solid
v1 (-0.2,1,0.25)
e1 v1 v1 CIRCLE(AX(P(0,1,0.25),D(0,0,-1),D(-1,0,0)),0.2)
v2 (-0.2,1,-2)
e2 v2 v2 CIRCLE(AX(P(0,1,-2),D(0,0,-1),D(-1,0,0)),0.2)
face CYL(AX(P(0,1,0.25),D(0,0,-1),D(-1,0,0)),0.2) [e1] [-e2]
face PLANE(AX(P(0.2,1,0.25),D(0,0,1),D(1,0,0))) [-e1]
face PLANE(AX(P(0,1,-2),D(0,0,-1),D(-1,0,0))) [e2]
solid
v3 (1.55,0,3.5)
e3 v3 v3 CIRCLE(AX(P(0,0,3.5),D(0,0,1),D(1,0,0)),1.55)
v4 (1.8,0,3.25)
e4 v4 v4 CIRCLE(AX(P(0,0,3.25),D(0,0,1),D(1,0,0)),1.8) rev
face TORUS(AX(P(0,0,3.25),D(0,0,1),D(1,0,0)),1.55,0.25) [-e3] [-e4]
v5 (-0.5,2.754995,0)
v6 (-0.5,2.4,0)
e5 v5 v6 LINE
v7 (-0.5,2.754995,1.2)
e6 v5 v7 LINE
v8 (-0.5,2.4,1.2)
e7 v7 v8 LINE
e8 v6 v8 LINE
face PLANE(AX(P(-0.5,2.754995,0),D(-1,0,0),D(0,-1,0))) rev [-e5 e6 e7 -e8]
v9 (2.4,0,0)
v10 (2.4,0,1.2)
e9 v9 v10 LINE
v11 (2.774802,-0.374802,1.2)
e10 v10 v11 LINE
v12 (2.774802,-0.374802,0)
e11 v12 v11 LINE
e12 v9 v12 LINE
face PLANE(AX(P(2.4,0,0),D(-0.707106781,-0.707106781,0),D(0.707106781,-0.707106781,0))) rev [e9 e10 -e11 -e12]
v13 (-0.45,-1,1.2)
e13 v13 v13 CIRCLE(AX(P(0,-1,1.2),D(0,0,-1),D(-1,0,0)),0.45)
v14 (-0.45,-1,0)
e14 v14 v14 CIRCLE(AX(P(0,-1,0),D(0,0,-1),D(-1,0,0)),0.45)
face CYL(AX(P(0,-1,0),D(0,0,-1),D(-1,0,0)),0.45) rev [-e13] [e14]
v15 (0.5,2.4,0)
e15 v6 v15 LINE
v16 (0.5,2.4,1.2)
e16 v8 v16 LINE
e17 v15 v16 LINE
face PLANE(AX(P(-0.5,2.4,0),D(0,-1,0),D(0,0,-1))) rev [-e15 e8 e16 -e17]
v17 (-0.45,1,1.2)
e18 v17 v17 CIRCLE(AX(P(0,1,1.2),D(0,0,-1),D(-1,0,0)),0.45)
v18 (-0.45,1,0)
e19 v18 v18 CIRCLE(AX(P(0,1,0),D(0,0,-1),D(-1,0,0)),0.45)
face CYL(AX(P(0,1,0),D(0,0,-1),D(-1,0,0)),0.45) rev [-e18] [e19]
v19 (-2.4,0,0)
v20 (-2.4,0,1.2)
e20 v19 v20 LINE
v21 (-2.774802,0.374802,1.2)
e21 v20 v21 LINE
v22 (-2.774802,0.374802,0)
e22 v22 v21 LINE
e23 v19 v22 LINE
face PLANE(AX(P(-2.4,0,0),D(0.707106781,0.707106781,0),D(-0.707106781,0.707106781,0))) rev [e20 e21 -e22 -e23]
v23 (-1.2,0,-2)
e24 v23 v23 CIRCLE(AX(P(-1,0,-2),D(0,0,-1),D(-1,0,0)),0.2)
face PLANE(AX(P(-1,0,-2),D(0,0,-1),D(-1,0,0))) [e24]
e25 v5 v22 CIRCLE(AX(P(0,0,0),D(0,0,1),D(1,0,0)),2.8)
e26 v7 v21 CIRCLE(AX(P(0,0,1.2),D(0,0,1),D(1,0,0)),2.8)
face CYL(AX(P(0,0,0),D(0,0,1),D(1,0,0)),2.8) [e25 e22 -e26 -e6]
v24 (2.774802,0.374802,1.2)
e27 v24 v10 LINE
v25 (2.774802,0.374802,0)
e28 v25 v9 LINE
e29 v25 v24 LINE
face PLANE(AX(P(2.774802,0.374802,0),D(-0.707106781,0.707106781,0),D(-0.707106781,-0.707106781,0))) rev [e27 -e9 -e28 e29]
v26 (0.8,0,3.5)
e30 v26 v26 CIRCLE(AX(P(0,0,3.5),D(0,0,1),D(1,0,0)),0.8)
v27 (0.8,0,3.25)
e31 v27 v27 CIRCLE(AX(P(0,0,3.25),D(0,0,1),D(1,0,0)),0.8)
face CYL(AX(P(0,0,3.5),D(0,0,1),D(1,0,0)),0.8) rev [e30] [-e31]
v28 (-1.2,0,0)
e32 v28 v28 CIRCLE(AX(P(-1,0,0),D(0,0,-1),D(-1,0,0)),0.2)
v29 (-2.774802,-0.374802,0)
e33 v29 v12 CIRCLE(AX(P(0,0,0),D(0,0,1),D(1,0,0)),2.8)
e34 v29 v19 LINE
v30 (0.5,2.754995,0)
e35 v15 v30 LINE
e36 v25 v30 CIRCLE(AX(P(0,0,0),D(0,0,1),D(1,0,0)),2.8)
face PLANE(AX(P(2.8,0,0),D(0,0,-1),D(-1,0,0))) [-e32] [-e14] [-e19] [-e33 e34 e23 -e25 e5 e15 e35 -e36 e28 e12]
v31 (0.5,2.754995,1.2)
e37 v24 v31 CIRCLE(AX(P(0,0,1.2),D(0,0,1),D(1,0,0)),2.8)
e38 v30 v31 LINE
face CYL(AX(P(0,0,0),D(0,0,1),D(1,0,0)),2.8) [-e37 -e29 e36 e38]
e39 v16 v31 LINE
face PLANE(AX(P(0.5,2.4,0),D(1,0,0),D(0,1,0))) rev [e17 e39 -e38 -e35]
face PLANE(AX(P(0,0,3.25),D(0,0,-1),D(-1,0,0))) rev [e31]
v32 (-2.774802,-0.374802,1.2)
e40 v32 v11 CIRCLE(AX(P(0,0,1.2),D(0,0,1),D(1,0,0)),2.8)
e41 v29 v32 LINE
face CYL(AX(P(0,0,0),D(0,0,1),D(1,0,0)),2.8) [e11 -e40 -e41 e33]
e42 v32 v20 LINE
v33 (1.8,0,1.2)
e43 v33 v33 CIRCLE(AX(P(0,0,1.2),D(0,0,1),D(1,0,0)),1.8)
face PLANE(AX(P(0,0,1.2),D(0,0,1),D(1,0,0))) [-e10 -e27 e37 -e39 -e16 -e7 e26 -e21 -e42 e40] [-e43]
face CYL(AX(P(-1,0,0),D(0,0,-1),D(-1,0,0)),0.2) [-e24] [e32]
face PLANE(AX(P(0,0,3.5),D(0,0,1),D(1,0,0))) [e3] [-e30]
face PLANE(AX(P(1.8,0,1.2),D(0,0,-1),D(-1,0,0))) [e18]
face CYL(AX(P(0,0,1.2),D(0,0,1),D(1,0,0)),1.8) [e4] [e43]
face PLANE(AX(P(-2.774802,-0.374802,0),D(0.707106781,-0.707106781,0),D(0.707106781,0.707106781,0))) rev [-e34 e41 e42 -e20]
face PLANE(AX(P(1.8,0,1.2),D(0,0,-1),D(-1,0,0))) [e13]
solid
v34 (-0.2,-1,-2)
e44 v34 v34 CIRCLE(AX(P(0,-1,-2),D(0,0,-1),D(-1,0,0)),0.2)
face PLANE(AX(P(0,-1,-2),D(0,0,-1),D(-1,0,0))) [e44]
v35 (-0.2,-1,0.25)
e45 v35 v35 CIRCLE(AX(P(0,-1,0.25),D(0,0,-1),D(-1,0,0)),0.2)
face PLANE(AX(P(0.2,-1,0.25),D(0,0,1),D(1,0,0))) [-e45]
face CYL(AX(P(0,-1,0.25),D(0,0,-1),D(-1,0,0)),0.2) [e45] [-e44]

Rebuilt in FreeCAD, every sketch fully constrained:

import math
import FreeCAD as App
import Part
import Sketcher
from FreeCAD import Vector


def edges_at(feature, points):
    """Names of the edges that pass closest to the given points."""
    edges = feature.Shape.Edges
    near = lambda p: min(range(len(edges)), key=lambda i: edges[i].distToShape(Part.Vertex(*p))[0])
    return sorted({f"Edge{near(p) + 1}" for p in points})


def add_polygon(sketch, points):
    """Adds a closed chain of lines whose ends are joined by coincident constraints."""
    first, n = sketch.GeometryCount, len(points)
    for a, b in zip(points, points[1:] + points[:1]):
        sketch.addGeometry(Part.LineSegment(App.Vector(*a, 0), App.Vector(*b, 0)), False)
    for i in range(n):
        sketch.addConstraint(Sketcher.Constraint("Coincident", first + i, 2, first + (i + 1) % n, 1))

doc = App.newDocument("Part")
body = doc.addObject("PartDesign::Body", "Body")

sketch1 = body.newObject("Sketcher::SketchObject", "Sketch")
sketch1.AttachmentSupport = (doc.getObject("XZ_Plane"), [""])
sketch1.MapMode = "FlatFace"
add_polygon(sketch1, [(0, 0), (0, 1.2), (2.8, 1.2), (2.8, 0)])
sketch1.addConstraint(Sketcher.Constraint("Vertical", 0))
sketch1.addConstraint(Sketcher.Constraint("Horizontal", 1))
sketch1.addConstraint(Sketcher.Constraint("Vertical", 2))
sketch1.addConstraint(Sketcher.Constraint("Horizontal", 3))
sketch1.addConstraint(Sketcher.Constraint("Coincident", 3, 2, -1, 1))
sketch1.addConstraint(Sketcher.Constraint("DistanceX", 1, 1, 1, 2, 2.8))
sketch1.addConstraint(Sketcher.Constraint("DistanceY", 0, 1, 0, 2, 1.2))
revolution = body.newObject("PartDesign::Revolution", "Revolution")
revolution.Profile = sketch1
revolution.ReferenceAxis = (sketch1, ["V_Axis"])
revolution.Angle = 360

sketch2 = body.newObject("Sketcher::SketchObject", "Sketch001")
sketch2.AttachmentSupport = (doc.getObject("XY_Plane"), [""])
sketch2.MapMode = "FlatFace"
sketch2.AttachmentOffset = App.Placement(Vector(0, 0, 1.2), App.Rotation())
sketch2.addGeometry(Part.LineSegment(Vector(2.8, 0.4, 0), Vector(2.4, 0, 0)), False)
sketch2.addGeometry(Part.LineSegment(Vector(2.4, 0, 0), Vector(2.8, -0.4, 0)), False)
sketch2.addGeometry(Part.ArcOfCircle(Part.Circle(Vector(0, 0, 0), Vector(0, 0, 1), 2.8), math.radians(-7.69), math.radians(7.69)), False)
sketch2.addConstraint(Sketcher.Constraint("Coincident", 0, 2, 1, 1))
sketch2.addConstraint(Sketcher.Constraint("Coincident", 1, 2, 2, 1))
sketch2.addConstraint(Sketcher.Constraint("Coincident", 2, 2, 0, 1))
sketch2.addConstraint(Sketcher.Constraint("Coincident", 2, 3, -1, 1))
sketch2.addConstraint(Sketcher.Constraint("PointOnObject", 0, 2, -1))
sketch2.addConstraint(Sketcher.Constraint("Perpendicular", 0, 1))
sketch2.addConstraint(Sketcher.Constraint("Vertical", 1, 2, 2, 2))
sketch2.addConstraint(Sketcher.Constraint("Radius", 2, 2.8))
sketch2.addConstraint(Sketcher.Constraint("DistanceX", -1, 1, 0, 2, 2.4))
pocket1 = body.newObject("PartDesign::Pocket", "Pocket")
pocket1.Profile = sketch2
pocket1.Type = "ThroughAll"

sketch3 = body.newObject("Sketcher::SketchObject", "Sketch002")
sketch3.AttachmentSupport = (doc.getObject("XY_Plane"), [""])
sketch3.MapMode = "FlatFace"
sketch3.AttachmentOffset = App.Placement(Vector(0, 0, 1.2), App.Rotation())
sketch3.addGeometry(Part.LineSegment(Vector(-2.8, -0.4, 0), Vector(-2.4, 0, 0)), False)
sketch3.addGeometry(Part.LineSegment(Vector(-2.4, 0, 0), Vector(-2.8, 0.4, 0)), False)
sketch3.addGeometry(Part.ArcOfCircle(Part.Circle(Vector(0, 0, 0), Vector(0, 0, 1), 2.8), math.radians(172.31), math.radians(187.69)), False)
sketch3.addConstraint(Sketcher.Constraint("Coincident", 0, 2, 1, 1))
sketch3.addConstraint(Sketcher.Constraint("Coincident", 1, 2, 2, 1))
sketch3.addConstraint(Sketcher.Constraint("Coincident", 2, 2, 0, 1))
sketch3.addConstraint(Sketcher.Constraint("Coincident", 2, 3, -1, 1))
sketch3.addConstraint(Sketcher.Constraint("PointOnObject", 0, 2, -1))
sketch3.addConstraint(Sketcher.Constraint("Perpendicular", 0, 1))
sketch3.addConstraint(Sketcher.Constraint("Vertical", 1, 2, 2, 2))
sketch3.addConstraint(Sketcher.Constraint("Radius", 2, 2.8))
sketch3.addConstraint(Sketcher.Constraint("DistanceX", 0, 2, -1, 1, 2.4))
pocket2 = body.newObject("PartDesign::Pocket", "Pocket001")
pocket2.Profile = sketch3
pocket2.Type = "ThroughAll"

sketch4 = body.newObject("Sketcher::SketchObject", "Sketch003")
sketch4.AttachmentSupport = (doc.getObject("XY_Plane"), [""])
sketch4.MapMode = "FlatFace"
sketch4.addGeometry(Part.LineSegment(Vector(-0.5, 2.75, 0), Vector(-0.5, 2.4, 0)), False)
sketch4.addGeometry(Part.LineSegment(Vector(-0.5, 2.4, 0), Vector(0.5, 2.4, 0)), False)
sketch4.addGeometry(Part.LineSegment(Vector(0.5, 2.4, 0), Vector(0.5, 2.75, 0)), False)
sketch4.addGeometry(Part.ArcOfCircle(Part.Circle(Vector(0, 0, 0), Vector(0, 0, 1), 2.8), math.radians(80), math.radians(100)), False)
sketch4.addConstraint(Sketcher.Constraint("Coincident", 0, 2, 1, 1))
sketch4.addConstraint(Sketcher.Constraint("Coincident", 1, 2, 2, 1))
sketch4.addConstraint(Sketcher.Constraint("Coincident", 2, 2, 3, 1))
sketch4.addConstraint(Sketcher.Constraint("Coincident", 3, 2, 0, 1))
sketch4.addConstraint(Sketcher.Constraint("Vertical", 0))
sketch4.addConstraint(Sketcher.Constraint("Horizontal", 1))
sketch4.addConstraint(Sketcher.Constraint("Vertical", 2))
sketch4.addConstraint(Sketcher.Constraint("Coincident", 3, 3, -1, 1))
sketch4.addConstraint(Sketcher.Constraint("Horizontal", 2, 2, 3, 2))
sketch4.addConstraint(Sketcher.Constraint("Radius", 3, 2.8))
sketch4.addConstraint(Sketcher.Constraint("DistanceX", 1, 1, 1, 2, 1.0))
sketch4.addConstraint(Sketcher.Constraint("DistanceY", -1, 1, 0, 2, 2.4))
pocket3 = body.newObject("PartDesign::Pocket", "Pocket002")
pocket3.Profile = sketch4
pocket3.Length = 1.2
pocket3.Reversed = True

sketch5 = body.newObject("Sketcher::SketchObject", "Sketch004")
sketch5.AttachmentSupport = (doc.getObject("XY_Plane"), [""])
sketch5.MapMode = "FlatFace"
sketch5.addGeometry(Part.Circle(Vector(0, 1, 0), Vector(0, 0, 1), 0.45), False)
sketch5.addConstraint(Sketcher.Constraint("PointOnObject", 0, 3, -2))
sketch5.addConstraint(Sketcher.Constraint("Diameter", 0, 0.9))
sketch5.addConstraint(Sketcher.Constraint("DistanceY", -1, 1, 0, 3, 1.0))
doc.recompute()
hole = body.newObject("PartDesign::Hole", "Hole")
hole.Profile = sketch5
hole.ThreadType = "None"
hole.Diameter = 0.9
hole.DepthType = "ThroughAll"
hole.Reversed = True

sketch6 = body.newObject("Sketcher::SketchObject", "Sketch005")
sketch6.AttachmentSupport = (doc.getObject("XY_Plane"), [""])
sketch6.MapMode = "FlatFace"
sketch6.addGeometry(Part.Circle(Vector(0, -1, 0), Vector(0, 0, 1), 0.45), False)
sketch6.addConstraint(Sketcher.Constraint("PointOnObject", 0, 3, -2))
sketch6.addConstraint(Sketcher.Constraint("Diameter", 0, 0.9))
sketch6.addConstraint(Sketcher.Constraint("DistanceY", 0, 3, -1, 1, 1.0))
doc.recompute()
hole2 = body.newObject("PartDesign::Hole", "Hole001")
hole2.Profile = sketch6
hole2.ThreadType = "None"
hole2.Diameter = 0.9
hole2.DepthType = "ThroughAll"
hole2.Reversed = True

sketch7 = body.newObject("Sketcher::SketchObject", "Sketch006")
sketch7.AttachmentSupport = (doc.getObject("XZ_Plane"), [""])
sketch7.MapMode = "FlatFace"
add_polygon(sketch7, [(0, 1.2), (0, 3.5), (1.8, 3.5), (1.8, 1.2)])
sketch7.addConstraint(Sketcher.Constraint("Vertical", 0))
sketch7.addConstraint(Sketcher.Constraint("Horizontal", 1))
sketch7.addConstraint(Sketcher.Constraint("Vertical", 2))
sketch7.addConstraint(Sketcher.Constraint("Horizontal", 3))
sketch7.addConstraint(Sketcher.Constraint("PointOnObject", 0, 2, -2))
sketch7.addConstraint(Sketcher.Constraint("DistanceX", 1, 1, 1, 2, 1.8))
sketch7.addConstraint(Sketcher.Constraint("DistanceY", 0, 1, 0, 2, 2.3))
sketch7.addConstraint(Sketcher.Constraint("DistanceY", -1, 1, 0, 2, 3.5))
revolution2 = body.newObject("PartDesign::Revolution", "Revolution001")
revolution2.Profile = sketch7
revolution2.ReferenceAxis = (sketch7, ["V_Axis"])
revolution2.Angle = 360

sketch8 = body.newObject("Sketcher::SketchObject", "Sketch007")
sketch8.AttachmentSupport = (doc.getObject("XZ_Plane"), [""])
sketch8.MapMode = "FlatFace"
add_polygon(sketch8, [(-1, 0), (-1, -2), (-0.8, -2), (-0.8, 0)])
sketch8.addGeometry(Part.LineSegment(Vector(-1, 0, 0), Vector(-1, -2, 0)), True)
sketch8.addConstraint(Sketcher.Constraint("Vertical", 0))
sketch8.addConstraint(Sketcher.Constraint("Horizontal", 1))
sketch8.addConstraint(Sketcher.Constraint("Vertical", 2))
sketch8.addConstraint(Sketcher.Constraint("Horizontal", 3))
sketch8.addConstraint(Sketcher.Constraint("Vertical", 4))
sketch8.addConstraint(Sketcher.Constraint("Coincident", 4, 1, 3, 2))
sketch8.addConstraint(Sketcher.Constraint("PointOnObject", 2, 2, -1))
sketch8.addConstraint(Sketcher.Constraint("Horizontal", 1, 2, 4, 2))
sketch8.addConstraint(Sketcher.Constraint("DistanceY", 0, 2, 0, 1, 2.0))
sketch8.addConstraint(Sketcher.Constraint("DistanceX", 1, 1, 1, 2, 0.2))
sketch8.addConstraint(Sketcher.Constraint("DistanceX", 0, 2, -1, 1, 1.0))
revolution3 = body.newObject("PartDesign::Revolution", "Revolution002")
revolution3.Profile = sketch8
revolution3.ReferenceAxis = (sketch8, ["Axis0"])
revolution3.Angle = 360

sketch9 = body.newObject("Sketcher::SketchObject", "Sketch008")
sketch9.AttachmentSupport = (doc.getObject("YZ_Plane"), [""])
sketch9.MapMode = "FlatFace"
add_polygon(sketch9, [(0, 3.25), (0, 3.5), (-0.8, 3.5), (-0.8, 3.25)])
sketch9.addConstraint(Sketcher.Constraint("Vertical", 0))
sketch9.addConstraint(Sketcher.Constraint("Horizontal", 1))
sketch9.addConstraint(Sketcher.Constraint("Vertical", 2))
sketch9.addConstraint(Sketcher.Constraint("Horizontal", 3))
sketch9.addConstraint(Sketcher.Constraint("PointOnObject", 0, 2, -2))
sketch9.addConstraint(Sketcher.Constraint("DistanceX", 1, 2, 1, 1, 0.8))
sketch9.addConstraint(Sketcher.Constraint("DistanceY", 0, 1, 0, 2, 0.25))
sketch9.addConstraint(Sketcher.Constraint("DistanceY", -1, 1, 0, 2, 3.5))
groove = body.newObject("PartDesign::Groove", "Groove")
groove.Profile = sketch9
groove.ReferenceAxis = (sketch9, ["V_Axis"])
groove.Angle = 360
doc.recompute()

fillet = body.newObject("PartDesign::Fillet", "Fillet")
fillet.Base = (groove, edges_at(groove, [(-1.8, 0, 3.5)]))
fillet.Radius = 0.25
body2 = doc.addObject("PartDesign::Body", "Body001")

sketch10 = body2.newObject("Sketcher::SketchObject", "Sketch009")
sketch10.AttachmentSupport = (doc.getObject("XZ_Plane001"), [""])
sketch10.MapMode = "FlatFace"
sketch10.AttachmentOffset = App.Placement(Vector(0, 0, 1), App.Rotation())
add_polygon(sketch10, [(0, 0.25), (0, -2), (0.2, -2), (0.2, 0.25)])
sketch10.addConstraint(Sketcher.Constraint("Vertical", 0))
sketch10.addConstraint(Sketcher.Constraint("Horizontal", 1))
sketch10.addConstraint(Sketcher.Constraint("Vertical", 2))
sketch10.addConstraint(Sketcher.Constraint("Horizontal", 3))
sketch10.addConstraint(Sketcher.Constraint("PointOnObject", 0, 2, -2))
sketch10.addConstraint(Sketcher.Constraint("DistanceX", 1, 1, 1, 2, 0.2))
sketch10.addConstraint(Sketcher.Constraint("DistanceY", 0, 2, -1, 1, 2.0))
sketch10.addConstraint(Sketcher.Constraint("DistanceY", 0, 2, 0, 1, 2.25))
revolution4 = body2.newObject("PartDesign::Revolution", "Revolution003")
revolution4.Profile = sketch10
revolution4.ReferenceAxis = (sketch10, ["V_Axis"])
revolution4.Angle = 360
body3 = doc.addObject("PartDesign::Body", "Body002")

sketch11 = body3.newObject("Sketcher::SketchObject", "Sketch010")
sketch11.AttachmentSupport = (doc.getObject("XZ_Plane002"), [""])
sketch11.MapMode = "FlatFace"
sketch11.AttachmentOffset = App.Placement(Vector(0, 0, -1), App.Rotation())
add_polygon(sketch11, [(0, 0.25), (0, -2), (0.2, -2), (0.2, 0.25)])
sketch11.addConstraint(Sketcher.Constraint("Vertical", 0))
sketch11.addConstraint(Sketcher.Constraint("Horizontal", 1))
sketch11.addConstraint(Sketcher.Constraint("Vertical", 2))
sketch11.addConstraint(Sketcher.Constraint("Horizontal", 3))
sketch11.addConstraint(Sketcher.Constraint("PointOnObject", 0, 2, -2))
sketch11.addConstraint(Sketcher.Constraint("DistanceX", 1, 1, 1, 2, 0.2))
sketch11.addConstraint(Sketcher.Constraint("DistanceY", 0, 2, -1, 1, 2.0))
sketch11.addConstraint(Sketcher.Constraint("DistanceY", 0, 2, 0, 1, 2.25))
revolution5 = body3.newObject("PartDesign::Revolution", "Revolution004")
revolution5.Profile = sketch11
revolution5.ReferenceAxis = (sketch11, ["V_Axis"])
revolution5.Angle = 360

doc.recompute()
